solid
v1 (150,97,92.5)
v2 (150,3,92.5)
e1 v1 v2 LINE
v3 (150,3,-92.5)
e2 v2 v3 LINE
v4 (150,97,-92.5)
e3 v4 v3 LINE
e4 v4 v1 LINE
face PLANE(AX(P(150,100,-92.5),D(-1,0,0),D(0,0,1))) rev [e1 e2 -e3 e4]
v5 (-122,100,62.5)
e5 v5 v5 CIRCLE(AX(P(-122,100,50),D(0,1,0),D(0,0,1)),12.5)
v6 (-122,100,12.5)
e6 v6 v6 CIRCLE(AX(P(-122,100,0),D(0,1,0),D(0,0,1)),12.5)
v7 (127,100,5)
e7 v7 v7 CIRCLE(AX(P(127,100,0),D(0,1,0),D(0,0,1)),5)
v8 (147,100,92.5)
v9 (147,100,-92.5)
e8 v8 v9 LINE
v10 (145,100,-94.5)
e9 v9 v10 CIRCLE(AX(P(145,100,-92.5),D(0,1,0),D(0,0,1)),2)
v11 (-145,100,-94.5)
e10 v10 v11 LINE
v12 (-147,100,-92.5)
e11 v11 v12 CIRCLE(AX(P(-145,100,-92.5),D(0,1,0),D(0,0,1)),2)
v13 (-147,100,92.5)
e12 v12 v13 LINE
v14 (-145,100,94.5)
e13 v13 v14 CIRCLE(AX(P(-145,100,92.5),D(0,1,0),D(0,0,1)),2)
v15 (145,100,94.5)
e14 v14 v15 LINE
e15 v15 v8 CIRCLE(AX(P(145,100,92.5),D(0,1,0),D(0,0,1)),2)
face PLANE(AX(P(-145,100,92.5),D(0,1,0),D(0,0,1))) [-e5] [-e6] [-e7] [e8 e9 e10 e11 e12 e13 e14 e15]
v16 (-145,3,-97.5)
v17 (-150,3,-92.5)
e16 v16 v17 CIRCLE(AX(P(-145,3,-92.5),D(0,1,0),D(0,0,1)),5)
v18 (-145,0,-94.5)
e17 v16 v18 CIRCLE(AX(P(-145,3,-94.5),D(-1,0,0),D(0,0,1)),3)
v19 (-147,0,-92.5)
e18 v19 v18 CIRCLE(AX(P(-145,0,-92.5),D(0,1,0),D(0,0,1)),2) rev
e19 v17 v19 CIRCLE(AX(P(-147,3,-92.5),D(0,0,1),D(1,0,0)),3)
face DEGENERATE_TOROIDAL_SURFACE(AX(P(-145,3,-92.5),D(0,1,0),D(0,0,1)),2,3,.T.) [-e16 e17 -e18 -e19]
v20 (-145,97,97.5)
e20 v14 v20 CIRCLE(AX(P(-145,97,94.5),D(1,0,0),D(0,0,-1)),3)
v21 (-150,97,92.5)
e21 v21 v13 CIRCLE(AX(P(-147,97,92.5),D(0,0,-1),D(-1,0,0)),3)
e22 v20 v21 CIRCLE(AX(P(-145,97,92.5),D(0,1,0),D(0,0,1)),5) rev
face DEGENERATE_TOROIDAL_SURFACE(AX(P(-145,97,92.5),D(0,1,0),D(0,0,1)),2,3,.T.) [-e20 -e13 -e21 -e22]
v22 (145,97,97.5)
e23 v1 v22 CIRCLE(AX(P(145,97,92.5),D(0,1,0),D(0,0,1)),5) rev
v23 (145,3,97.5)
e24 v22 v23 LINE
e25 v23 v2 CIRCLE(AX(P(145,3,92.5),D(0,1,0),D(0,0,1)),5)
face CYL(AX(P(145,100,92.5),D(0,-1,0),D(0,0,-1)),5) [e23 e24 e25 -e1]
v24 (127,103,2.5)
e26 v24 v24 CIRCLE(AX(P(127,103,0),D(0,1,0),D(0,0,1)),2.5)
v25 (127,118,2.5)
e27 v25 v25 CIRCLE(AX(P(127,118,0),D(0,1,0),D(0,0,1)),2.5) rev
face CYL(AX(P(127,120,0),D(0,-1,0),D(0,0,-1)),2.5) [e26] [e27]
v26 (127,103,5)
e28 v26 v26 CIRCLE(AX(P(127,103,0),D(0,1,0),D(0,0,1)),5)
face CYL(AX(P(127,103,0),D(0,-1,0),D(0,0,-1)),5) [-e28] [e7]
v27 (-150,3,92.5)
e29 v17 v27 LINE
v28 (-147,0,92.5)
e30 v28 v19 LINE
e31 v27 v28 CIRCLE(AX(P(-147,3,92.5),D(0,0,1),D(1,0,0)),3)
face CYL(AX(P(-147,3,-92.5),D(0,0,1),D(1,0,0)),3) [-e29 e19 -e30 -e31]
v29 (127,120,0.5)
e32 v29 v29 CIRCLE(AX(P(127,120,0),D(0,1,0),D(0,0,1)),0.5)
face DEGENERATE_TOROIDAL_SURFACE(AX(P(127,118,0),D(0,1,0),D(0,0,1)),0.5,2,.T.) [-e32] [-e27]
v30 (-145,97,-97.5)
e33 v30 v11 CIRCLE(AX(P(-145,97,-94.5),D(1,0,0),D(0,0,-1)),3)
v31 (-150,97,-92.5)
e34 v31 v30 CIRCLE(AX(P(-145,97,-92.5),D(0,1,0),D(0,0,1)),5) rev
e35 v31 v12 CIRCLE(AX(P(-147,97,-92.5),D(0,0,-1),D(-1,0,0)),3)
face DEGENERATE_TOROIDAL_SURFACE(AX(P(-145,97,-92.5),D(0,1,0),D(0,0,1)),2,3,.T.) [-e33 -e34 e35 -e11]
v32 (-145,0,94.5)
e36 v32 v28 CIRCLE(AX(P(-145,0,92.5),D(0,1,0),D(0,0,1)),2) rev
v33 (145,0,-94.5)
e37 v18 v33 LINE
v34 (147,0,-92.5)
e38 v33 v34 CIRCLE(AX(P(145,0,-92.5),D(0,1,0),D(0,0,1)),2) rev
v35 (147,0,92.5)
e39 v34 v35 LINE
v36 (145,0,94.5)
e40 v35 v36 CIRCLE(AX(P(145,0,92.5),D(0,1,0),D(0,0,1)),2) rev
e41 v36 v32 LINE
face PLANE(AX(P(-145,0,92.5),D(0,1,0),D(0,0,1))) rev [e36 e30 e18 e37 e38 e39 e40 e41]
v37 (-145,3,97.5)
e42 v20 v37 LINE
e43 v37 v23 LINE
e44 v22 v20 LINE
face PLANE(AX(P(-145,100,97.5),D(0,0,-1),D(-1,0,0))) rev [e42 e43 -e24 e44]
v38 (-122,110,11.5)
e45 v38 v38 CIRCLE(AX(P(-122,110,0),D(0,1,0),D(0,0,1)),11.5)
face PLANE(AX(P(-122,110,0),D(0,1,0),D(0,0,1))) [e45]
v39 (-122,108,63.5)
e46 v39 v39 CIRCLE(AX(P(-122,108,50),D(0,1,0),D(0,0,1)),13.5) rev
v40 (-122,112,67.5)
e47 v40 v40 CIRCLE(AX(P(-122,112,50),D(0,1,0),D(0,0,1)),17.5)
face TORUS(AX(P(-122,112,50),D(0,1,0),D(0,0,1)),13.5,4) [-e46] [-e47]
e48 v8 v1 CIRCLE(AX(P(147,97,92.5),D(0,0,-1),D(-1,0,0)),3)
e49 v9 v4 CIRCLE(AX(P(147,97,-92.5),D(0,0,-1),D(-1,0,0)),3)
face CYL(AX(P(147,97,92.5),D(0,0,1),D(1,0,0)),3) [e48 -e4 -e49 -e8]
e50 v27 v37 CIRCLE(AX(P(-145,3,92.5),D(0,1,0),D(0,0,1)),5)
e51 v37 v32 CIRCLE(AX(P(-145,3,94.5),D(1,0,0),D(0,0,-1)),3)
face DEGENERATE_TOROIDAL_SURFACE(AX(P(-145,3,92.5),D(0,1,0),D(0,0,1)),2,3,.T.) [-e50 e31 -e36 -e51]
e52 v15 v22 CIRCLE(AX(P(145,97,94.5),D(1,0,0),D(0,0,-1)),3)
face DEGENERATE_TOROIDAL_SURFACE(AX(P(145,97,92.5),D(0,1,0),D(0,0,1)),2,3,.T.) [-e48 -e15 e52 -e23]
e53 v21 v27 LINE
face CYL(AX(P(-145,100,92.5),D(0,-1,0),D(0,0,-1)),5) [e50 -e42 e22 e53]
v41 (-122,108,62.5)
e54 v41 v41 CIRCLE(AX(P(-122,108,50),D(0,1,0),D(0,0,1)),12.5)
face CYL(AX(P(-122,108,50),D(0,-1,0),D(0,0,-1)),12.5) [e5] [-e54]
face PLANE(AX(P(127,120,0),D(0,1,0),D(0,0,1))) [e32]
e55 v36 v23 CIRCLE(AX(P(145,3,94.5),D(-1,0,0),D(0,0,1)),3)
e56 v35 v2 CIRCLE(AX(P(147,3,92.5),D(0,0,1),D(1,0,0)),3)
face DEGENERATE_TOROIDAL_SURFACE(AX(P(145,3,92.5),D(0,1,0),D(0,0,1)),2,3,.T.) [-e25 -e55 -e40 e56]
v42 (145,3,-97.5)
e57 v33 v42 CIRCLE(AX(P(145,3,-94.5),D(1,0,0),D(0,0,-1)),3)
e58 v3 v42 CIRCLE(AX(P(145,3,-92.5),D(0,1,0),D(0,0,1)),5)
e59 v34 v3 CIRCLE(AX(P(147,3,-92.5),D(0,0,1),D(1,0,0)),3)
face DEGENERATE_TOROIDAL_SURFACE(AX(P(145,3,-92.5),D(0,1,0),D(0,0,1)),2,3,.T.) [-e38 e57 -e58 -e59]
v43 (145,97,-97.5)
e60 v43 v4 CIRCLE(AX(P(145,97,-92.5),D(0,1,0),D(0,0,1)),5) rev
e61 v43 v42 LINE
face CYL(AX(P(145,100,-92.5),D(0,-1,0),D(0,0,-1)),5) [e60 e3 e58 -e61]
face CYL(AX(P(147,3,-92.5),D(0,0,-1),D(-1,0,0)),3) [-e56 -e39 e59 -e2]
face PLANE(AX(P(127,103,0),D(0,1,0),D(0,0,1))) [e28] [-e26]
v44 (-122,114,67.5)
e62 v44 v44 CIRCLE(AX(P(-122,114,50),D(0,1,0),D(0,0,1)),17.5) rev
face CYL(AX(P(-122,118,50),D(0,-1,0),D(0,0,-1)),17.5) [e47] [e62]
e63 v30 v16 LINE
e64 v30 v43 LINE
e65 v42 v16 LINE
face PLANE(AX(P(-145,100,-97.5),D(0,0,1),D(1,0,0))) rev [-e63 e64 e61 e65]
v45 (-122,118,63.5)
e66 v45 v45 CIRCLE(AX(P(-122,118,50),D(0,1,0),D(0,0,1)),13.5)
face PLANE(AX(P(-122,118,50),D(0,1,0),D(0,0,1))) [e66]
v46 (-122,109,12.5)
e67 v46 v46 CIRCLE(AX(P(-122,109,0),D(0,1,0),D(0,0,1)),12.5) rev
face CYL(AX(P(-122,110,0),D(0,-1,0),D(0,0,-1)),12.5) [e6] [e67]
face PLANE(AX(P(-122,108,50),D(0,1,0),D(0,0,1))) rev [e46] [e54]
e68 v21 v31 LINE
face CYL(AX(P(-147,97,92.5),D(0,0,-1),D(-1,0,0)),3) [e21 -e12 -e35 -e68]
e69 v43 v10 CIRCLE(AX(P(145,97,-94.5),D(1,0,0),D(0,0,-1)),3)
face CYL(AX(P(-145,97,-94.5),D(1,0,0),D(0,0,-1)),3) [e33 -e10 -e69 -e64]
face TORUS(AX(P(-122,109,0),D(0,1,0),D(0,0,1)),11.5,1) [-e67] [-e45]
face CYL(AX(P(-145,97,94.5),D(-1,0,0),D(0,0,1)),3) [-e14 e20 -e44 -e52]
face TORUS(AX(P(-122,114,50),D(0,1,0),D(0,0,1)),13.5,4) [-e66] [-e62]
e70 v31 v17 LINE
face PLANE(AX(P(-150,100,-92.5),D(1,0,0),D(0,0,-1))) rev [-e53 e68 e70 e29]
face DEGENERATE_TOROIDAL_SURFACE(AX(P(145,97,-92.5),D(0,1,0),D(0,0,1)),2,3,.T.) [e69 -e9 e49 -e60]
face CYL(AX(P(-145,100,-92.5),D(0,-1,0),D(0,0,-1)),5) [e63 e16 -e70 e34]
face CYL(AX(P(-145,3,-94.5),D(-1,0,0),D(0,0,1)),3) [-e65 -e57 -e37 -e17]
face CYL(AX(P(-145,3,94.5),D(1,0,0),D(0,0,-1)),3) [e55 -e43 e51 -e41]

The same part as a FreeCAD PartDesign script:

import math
import FreeCAD as App
import Part
import Sketcher

V = App.Vector
Q = App.Units.Quantity


def edges_at(feature, points):
    """Names of the edges that pass closest to the given points."""
    edges = feature.Shape.Edges
    near = lambda p: min(range(len(edges)), key=lambda i: edges[i].distToShape(Part.Vertex(*p))[0])
    return sorted({f"Edge{near(p) + 1}" for p in points})

doc = App.newDocument("Part")
body = doc.addObject("PartDesign::Body", "Body")

# Sketch on XZ plane
sketch1 = body.newObject("Sketcher::SketchObject", "Sketch")
sketch1.AttachmentSupport = (doc.getObject("XZ_Plane"), [""])
sketch1.MapMode = "FlatFace"
sketch1.addGeometry([
    Part.LineSegment(V(145, -97.5, 0), V(-145, -97.5, 0)),  # 0
    Part.ArcOfCircle(Part.Circle(V(-145, -92.5, 0), V(0, 0, 1), 5), math.radians(180), math.radians(270)),  # 1
    Part.LineSegment(V(-150, -92.5, 0), V(-150, 92.5, 0)),  # 2
    Part.ArcOfCircle(Part.Circle(V(-145, 92.5, 0), V(0, 0, 1), 5), math.radians(90), math.radians(180)),  # 3
    Part.LineSegment(V(-145, 97.5, 0), V(145, 97.5, 0)),  # 4
    Part.ArcOfCircle(Part.Circle(V(145, 92.5, 0), V(0, 0, 1), 5), math.radians(0), math.radians(90)),  # 5
    Part.LineSegment(V(150, 92.5, 0), V(150, -92.5, 0)),  # 6
    Part.ArcOfCircle(Part.Circle(V(145, -92.5, 0), V(0, 0, 1), 5), math.radians(-90), math.radians(0)),  # 7
], False)
sketch1.addConstraint([
    Sketcher.Constraint("Tangent", 0, 2, 1, 2),
    Sketcher.Constraint("Tangent", 1, 1, 2, 1),
    Sketcher.Constraint("Tangent", 2, 2, 3, 2),
    Sketcher.Constraint("Tangent", 3, 1, 4, 1),
    Sketcher.Constraint("Tangent", 4, 2, 5, 2),
    Sketcher.Constraint("Tangent", 5, 1, 6, 1),
    Sketcher.Constraint("Tangent", 6, 2, 7, 2),
    Sketcher.Constraint("Tangent", 7, 1, 0, 1),
    Sketcher.Constraint("Horizontal", 0),
    Sketcher.Constraint("Vertical", 2),
    Sketcher.Constraint("Horizontal", 4),
    Sketcher.Constraint("Vertical", 6),
    Sketcher.Constraint("Equal", 1, 3),
    Sketcher.Constraint("Equal", 3, 5),
    Sketcher.Constraint("Equal", 5, 7),
    Sketcher.Constraint("Symmetric", 1, 3, 5, 3, -1, 1),
    Sketcher.Constraint("Radius", 1, Q("5 mm")),
    Sketcher.Constraint("DistanceX", 0, 2, 0, 1, Q("290 mm")),
    Sketcher.Constraint("DistanceY", 2, 1, 2, 2, Q("185 mm")),
])
pad1 = body.newObject("PartDesign::Pad", "Pad")
pad1.Profile = sketch1
pad1.Length = 100
pad1.Reversed = True
doc.recompute()

fillet = body.newObject("PartDesign::Fillet", "Fillet")
fillet.Base = (pad1, edges_at(pad1, [
    (150, 0, 0),
    (148.536, 0, 96.036),
    (0, 0, 97.5),
    (-148.536, 0, 96.036),
    (148.536, 100, 96.036),
    (150, 100, 0),
    (148.536, 100, -96.036),
    (0, 100, -97.5),
    (-148.536, 100, -96.036),
    (-150, 100, 0),
    (-148.536, 100, 96.036),
    (-150, 0, 0),
    (0, 100, 97.5),
    (-148.536, 0, -96.036),
    (0, 0, -97.5),
    (148.536, 0, -96.036),
]))
fillet.Radius = 3

# Sketch on XZ plane
sketch2 = body.newObject("Sketcher::SketchObject", "Sketch001")
sketch2.AttachmentSupport = (doc.getObject("XZ_Plane"), [""])
sketch2.MapMode = "FlatFace"
sketch2.AttachmentOffset = App.Placement(V(0, 0, -100), App.Rotation())
sketch2.addGeometry(Part.Circle(V(-122, 0, 0), V(0, 0, 1), 12.5), False)
sketch2.addConstraint([
    Sketcher.Constraint("PointOnObject", 0, 3, -1),
    Sketcher.Constraint("Diameter", 0, Q("25 mm")),
    Sketcher.Constraint("DistanceX", 0, 3, -1, 1, Q("122 mm")),
])
pad2 = body.newObject("PartDesign::Pad", "Pad001")
pad2.Profile = sketch2
pad2.Length = 10
pad2.Reversed = True

# Sketch on XZ plane
sketch3 = body.newObject("Sketcher::SketchObject", "Sketch002")
sketch3.AttachmentSupport = (doc.getObject("XZ_Plane"), [""])
sketch3.MapMode = "FlatFace"
sketch3.AttachmentOffset = App.Placement(V(0, 0, -100), App.Rotation())
sketch3.addGeometry(Part.Circle(V(-122, 50, 0), V(0, 0, 1), 12.5), False)
sketch3.addConstraint([
    Sketcher.Constraint("Diameter", 0, Q("25 mm")),
    Sketcher.Constraint("DistanceX", 0, 3, -1, 1, Q("122 mm")),
    Sketcher.Constraint("DistanceY", -1, 1, 0, 3, Q("50 mm")),
])
pad3 = body.newObject("PartDesign::Pad", "Pad002")
pad3.Profile = sketch3
pad3.Length = 8
pad3.Reversed = True

# Sketch on XZ plane
sketch4 = body.newObject("Sketcher::SketchObject", "Sketch003")
sketch4.AttachmentSupport = (doc.getObject("XZ_Plane"), [""])
sketch4.MapMode = "FlatFace"
sketch4.AttachmentOffset = App.Placement(V(0, 0, -108), App.Rotation())
sketch4.addGeometry(Part.Circle(V(-122, 50, 0), V(0, 0, 1), 17.5), False)
sketch4.addConstraint([
    Sketcher.Constraint("Diameter", 0, Q("35 mm")),
    Sketcher.Constraint("DistanceX", 0, 3, -1, 1, Q("122 mm")),
    Sketcher.Constraint("DistanceY", -1, 1, 0, 3, Q("50 mm")),
])
pad4 = body.newObject("PartDesign::Pad", "Pad003")
pad4.Profile = sketch4
pad4.Length = 10
pad4.Reversed = True
doc.recompute()

fillet2 = body.newObject("PartDesign::Fillet", "Fillet001")
fillet2.Base = (pad4, edges_at(pad4, [(-122, 108, 32.5), (-122, 118, 32.5)]))
fillet2.Radius = 4
doc.recompute()

fillet3 = body.newObject("PartDesign::Fillet", "Fillet002")
fillet3.Base = (fillet2, edges_at(fillet2, [(-122, 110, -12.5)]))
fillet3.Radius = 1

# Sketch on XZ plane
sketch5 = body.newObject("Sketcher::SketchObject", "Sketch004")
sketch5.AttachmentSupport = (doc.getObject("XZ_Plane"), [""])
sketch5.MapMode = "FlatFace"
sketch5.AttachmentOffset = App.Placement(V(0, 0, -100), App.Rotation())
sketch5.addGeometry(Part.Circle(V(127, 0, 0), V(0, 0, 1), 5), False)
sketch5.addConstraint([
    Sketcher.Constraint("PointOnObject", 0, 3, -1),
    Sketcher.Constraint("Diameter", 0, Q("10 mm")),
    Sketcher.Constraint("DistanceX", -1, 1, 0, 3, Q("127 mm")),
])
pad5 = body.newObject("PartDesign::Pad", "Pad004")
pad5.Profile = sketch5
pad5.Length = 3
pad5.Reversed = True

# Sketch on XZ plane
sketch6 = body.newObject("Sketcher::SketchObject", "Sketch005")
sketch6.AttachmentSupport = (doc.getObject("XZ_Plane"), [""])
sketch6.MapMode = "FlatFace"
sketch6.AttachmentOffset = App.Placement(V(0, 0, -103), App.Rotation())
sketch6.addGeometry(Part.Circle(V(127, 0, 0), V(0, 0, 1), 2.5), False)
sketch6.addConstraint([
    Sketcher.Constraint("PointOnObject", 0, 3, -1),
    Sketcher.Constraint("Diameter", 0, Q("5 mm")),
    Sketcher.Constraint("DistanceX", -1, 1, 0, 3, Q("127 mm")),
])
pad6 = body.newObject("PartDesign::Pad", "Pad005")
pad6.Profile = sketch6
pad6.Length = 17
pad6.Reversed = True
doc.recompute()

fillet4 = body.newObject("PartDesign::Fillet", "Fillet003")
fillet4.Base = (pad6, edges_at(pad6, [(127, 120, -2.5)]))
fillet4.Radius = 2

doc.recompute()
